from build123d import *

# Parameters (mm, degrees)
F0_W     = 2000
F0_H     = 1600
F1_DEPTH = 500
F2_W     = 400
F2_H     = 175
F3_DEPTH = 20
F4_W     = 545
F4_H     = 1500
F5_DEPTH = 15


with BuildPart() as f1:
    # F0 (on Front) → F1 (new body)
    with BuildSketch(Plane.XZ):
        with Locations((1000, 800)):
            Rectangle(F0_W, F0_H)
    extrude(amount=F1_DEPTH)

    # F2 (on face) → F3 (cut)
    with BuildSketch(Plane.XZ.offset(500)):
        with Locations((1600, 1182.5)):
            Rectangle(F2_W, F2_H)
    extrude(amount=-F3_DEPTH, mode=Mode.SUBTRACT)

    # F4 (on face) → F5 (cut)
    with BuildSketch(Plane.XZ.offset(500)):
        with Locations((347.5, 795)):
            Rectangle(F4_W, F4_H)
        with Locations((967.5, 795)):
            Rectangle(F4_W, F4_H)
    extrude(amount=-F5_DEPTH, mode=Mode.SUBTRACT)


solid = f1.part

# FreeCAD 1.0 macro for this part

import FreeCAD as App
import Part
import Sketcher

doc = App.newDocument("Part")
params = doc.addObject("Spreadsheet::Sheet", "Params")
for row, (alias, value) in enumerate([
    ("sketch1_width", "2000 mm"),
    ("sketch1_height", "1600 mm"),
    ("pad1_length", "500 mm"),
    ("sketch2_width", "400 mm"),
    ("sketch2_height", "175 mm"),
    ("pocket1_length", "20 mm"),
    ("sketch3_width", "545 mm"),
    ("sketch3_height", "1500 mm"),
    ("pocket2_length", "15 mm"),
], start=1):
    params.set(f"A{row}", alias)
    params.set(f"B{row}", "=" + value)
    params.setAlias(f"B{row}", alias)

body = doc.addObject("PartDesign::Body", "Body")

# Sketch on XZ plane
sketch1 = body.newObject("Sketcher::SketchObject", "Sketch")
sketch1.AttachmentSupport = (doc.getObject("XZ_Plane"), [""])
sketch1.MapMode = "FlatFace"
sketch1.addGeometry(Part.LineSegment(App.Vector(0, 1600, 0), App.Vector(0, 0, 0)), False)
sketch1.addGeometry(Part.LineSegment(App.Vector(0, 0, 0), App.Vector(2000, 0, 0)), False)
sketch1.addGeometry(Part.LineSegment(App.Vector(2000, 0, 0), App.Vector(2000, 1600, 0)), False)
sketch1.addGeometry(Part.LineSegment(App.Vector(2000, 1600, 0), App.Vector(0, 1600, 0)), False)
sketch1.addConstraint(Sketcher.Constraint("Coincident", 0, 2, 1, 1))
sketch1.addConstraint(Sketcher.Constraint("Coincident", 1, 2, 2, 1))
sketch1.addConstraint(Sketcher.Constraint("Coincident", 2, 2, 3, 1))
sketch1.addConstraint(Sketcher.Constraint("Coincident", 3, 2, 0, 1))
sketch1.addConstraint(Sketcher.Constraint("Vertical", 0))
sketch1.addConstraint(Sketcher.Constraint("Horizontal", 1))
sketch1.addConstraint(Sketcher.Constraint("Vertical", 2))
sketch1.addConstraint(Sketcher.Constraint("Horizontal", 3))
sketch1.addConstraint(Sketcher.Constraint("Coincident", 0, 2, -1, 1))
sketch1.addConstraint(Sketcher.Constraint("DistanceX", 1, 1, 1, 2, 2000.0))
sketch1.addConstraint(Sketcher.Constraint("DistanceY", 0, 2, 0, 1, 1600.0))
sketch1.setExpression("Constraints[9]", "Params.sketch1_width")
sketch1.setExpression("Constraints[10]", "Params.sketch1_height")
pad1 = body.newObject("PartDesign::Pad", "Pad")
pad1.Profile = sketch1
pad1.setExpression("Length", "Params.pad1_length")

# Sketch on XZ plane
sketch2 = body.newObject("Sketcher::SketchObject", "Sketch001")
sketch2.AttachmentSupport = (doc.getObject("XZ_Plane"), [""])
sketch2.MapMode = "FlatFace"
sketch2.AttachmentOffset = App.Placement(App.Vector(0, 0, 500), App.Rotation())
sketch2.addGeometry(Part.LineSegment(App.Vector(1400, 1270, 0), App.Vector(1400, 1095, 0)), False)
sketch2.addGeometry(Part.LineSegment(App.Vector(1400, 1095, 0), App.Vector(1800, 1095, 0)), False)
sketch2.addGeometry(Part.LineSegment(App.Vector(1800, 1095, 0), App.Vector(1800, 1270, 0)), False)
sketch2.addGeometry(Part.LineSegment(App.Vector(1800, 1270, 0), App.Vector(1400, 1270, 0)), False)
sketch2.addConstraint(Sketcher.Constraint("Coincident", 0, 2, 1, 1))
sketch2.addConstraint(Sketcher.Constraint("Coincident", 1, 2, 2, 1))
sketch2.addConstraint(Sketcher.Constraint("Coincident", 2, 2, 3, 1))
sketch2.addConstraint(Sketcher.Constraint("Coincident", 3, 2, 0, 1))
sketch2.addConstraint(Sketcher.Constraint("Vertical", 0))
sketch2.addConstraint(Sketcher.Constraint("Horizontal", 1))
sketch2.addConstraint(Sketcher.Constraint("Vertical", 2))
sketch2.addConstraint(Sketcher.Constraint("Horizontal", 3))
sketch2.addConstraint(Sketcher.Constraint("DistanceX", 1, 1, 1, 2, 400.0))
sketch2.addConstraint(Sketcher.Constraint("DistanceY", 0, 2, 0, 1, 175.0))
sketch2.addConstraint(Sketcher.Constraint("DistanceX", -1, 1, 0, 2, 1400.0))
sketch2.addConstraint(Sketcher.Constraint("DistanceY", -1, 1, 0, 2, 1095.0))
sketch2.setExpression("Constraints[8]", "Params.sketch2_width")
sketch2.setExpression("Constraints[9]", "Params.sketch2_height")
pocket1 = body.newObject("PartDesign::Pocket", "Pocket")
pocket1.Profile = sketch2
pocket1.setExpression("Length", "Params.pocket1_length")

# Sketch on XZ plane
sketch3 = body.newObject("Sketcher::SketchObject", "Sketch002")
sketch3.AttachmentSupport = (doc.getObject("XZ_Plane"), [""])
sketch3.MapMode = "FlatFace"
sketch3.AttachmentOffset = App.Placement(App.Vector(0, 0, 500), App.Rotation())
sketch3.addGeometry(Part.LineSegment(App.Vector(75, 1545, 0), App.Vector(75, 45, 0)), False)
sketch3.addGeometry(Part.LineSegment(App.Vector(75, 45, 0), App.Vector(620, 45, 0)), False)
sketch3.addGeometry(Part.LineSegment(App.Vector(620, 45, 0), App.Vector(620, 1545, 0)), False)
sketch3.addGeometry(Part.LineSegment(App.Vector(620, 1545, 0), App.Vector(75, 1545, 0)), False)
sketch3.addGeometry(Part.LineSegment(App.Vector(695, 1545, 0), App.Vector(695, 45, 0)), False)
sketch3.addGeometry(Part.LineSegment(App.Vector(695, 45, 0), App.Vector(1240, 45, 0)), False)
sketch3.addGeometry(Part.LineSegment(App.Vector(1240, 45, 0), App.Vector(1240, 1545, 0)), False)
sketch3.addGeometry(Part.LineSegment(App.Vector(1240, 1545, 0), App.Vector(695, 1545, 0)), False)
sketch3.addConstraint(Sketcher.Constraint("Coincident", 0, 2, 1, 1))
sketch3.addConstraint(Sketcher.Constraint("Coincident", 1, 2, 2, 1))
sketch3.addConstraint(Sketcher.Constraint("Coincident", 2, 2, 3, 1))
sketch3.addConstraint(Sketcher.Constraint("Coincident", 3, 2, 0, 1))
sketch3.addConstraint(Sketcher.Constraint("Coincident", 4, 2, 5, 1))
sketch3.addConstraint(Sketcher.Constraint("Coincident", 5, 2, 6, 1))
sketch3.addConstraint(Sketcher.Constraint("Coincident", 6, 2, 7, 1))
sketch3.addConstraint(Sketcher.Constraint("Coincident", 7, 2, 4, 1))
sketch3.addConstraint(Sketcher.Constraint("Vertical", 0))
sketch3.addConstraint(Sketcher.Constraint("Horizontal", 1))
sketch3.addConstraint(Sketcher.Constraint("Vertical", 2))
sketch3.addConstraint(Sketcher.Constraint("Horizontal", 3))
sketch3.addConstraint(Sketcher.Constraint("Vertical", 4))
sketch3.addConstraint(Sketcher.Constraint("Horizontal", 5))
sketch3.addConstraint(Sketcher.Constraint("Vertical", 6))
sketch3.addConstraint(Sketcher.Constraint("Horizontal", 7))
sketch3.addConstraint(Sketcher.Constraint("Horizontal", 1, 2, 4, 2))
sketch3.addConstraint(Sketcher.Constraint("Horizontal", 3, 2, 6, 2))
sketch3.addConstraint(Sketcher.Constraint("Equal", 3, 5))
sketch3.addConstraint(Sketcher.Constraint("DistanceX", 1, 1, 1, 2, 545.0))
sketch3.addConstraint(Sketcher.Constraint("DistanceY", 0, 2, 0, 1, 1500.0))
sketch3.addConstraint(Sketcher.Constraint("DistanceX", -1, 1, 0, 2, 75.0))
sketch3.addConstraint(Sketcher.Constraint("DistanceY", -1, 1, 0, 2, 45.0))
sketch3.addConstraint(Sketcher.Constraint("DistanceX", -1, 1, 4, 2, 695.0))
sketch3.setExpression("Constraints[19]", "Params.sketch3_width")
sketch3.setExpression("Constraints[20]", "Params.sketch3_height")
pocket2 = body.newObject("PartDesign::Pocket", "Pocket001")
pocket2.Profile = sketch3
pocket2.setExpression("Length", "Params.pocket2_length")

doc.recompute()
